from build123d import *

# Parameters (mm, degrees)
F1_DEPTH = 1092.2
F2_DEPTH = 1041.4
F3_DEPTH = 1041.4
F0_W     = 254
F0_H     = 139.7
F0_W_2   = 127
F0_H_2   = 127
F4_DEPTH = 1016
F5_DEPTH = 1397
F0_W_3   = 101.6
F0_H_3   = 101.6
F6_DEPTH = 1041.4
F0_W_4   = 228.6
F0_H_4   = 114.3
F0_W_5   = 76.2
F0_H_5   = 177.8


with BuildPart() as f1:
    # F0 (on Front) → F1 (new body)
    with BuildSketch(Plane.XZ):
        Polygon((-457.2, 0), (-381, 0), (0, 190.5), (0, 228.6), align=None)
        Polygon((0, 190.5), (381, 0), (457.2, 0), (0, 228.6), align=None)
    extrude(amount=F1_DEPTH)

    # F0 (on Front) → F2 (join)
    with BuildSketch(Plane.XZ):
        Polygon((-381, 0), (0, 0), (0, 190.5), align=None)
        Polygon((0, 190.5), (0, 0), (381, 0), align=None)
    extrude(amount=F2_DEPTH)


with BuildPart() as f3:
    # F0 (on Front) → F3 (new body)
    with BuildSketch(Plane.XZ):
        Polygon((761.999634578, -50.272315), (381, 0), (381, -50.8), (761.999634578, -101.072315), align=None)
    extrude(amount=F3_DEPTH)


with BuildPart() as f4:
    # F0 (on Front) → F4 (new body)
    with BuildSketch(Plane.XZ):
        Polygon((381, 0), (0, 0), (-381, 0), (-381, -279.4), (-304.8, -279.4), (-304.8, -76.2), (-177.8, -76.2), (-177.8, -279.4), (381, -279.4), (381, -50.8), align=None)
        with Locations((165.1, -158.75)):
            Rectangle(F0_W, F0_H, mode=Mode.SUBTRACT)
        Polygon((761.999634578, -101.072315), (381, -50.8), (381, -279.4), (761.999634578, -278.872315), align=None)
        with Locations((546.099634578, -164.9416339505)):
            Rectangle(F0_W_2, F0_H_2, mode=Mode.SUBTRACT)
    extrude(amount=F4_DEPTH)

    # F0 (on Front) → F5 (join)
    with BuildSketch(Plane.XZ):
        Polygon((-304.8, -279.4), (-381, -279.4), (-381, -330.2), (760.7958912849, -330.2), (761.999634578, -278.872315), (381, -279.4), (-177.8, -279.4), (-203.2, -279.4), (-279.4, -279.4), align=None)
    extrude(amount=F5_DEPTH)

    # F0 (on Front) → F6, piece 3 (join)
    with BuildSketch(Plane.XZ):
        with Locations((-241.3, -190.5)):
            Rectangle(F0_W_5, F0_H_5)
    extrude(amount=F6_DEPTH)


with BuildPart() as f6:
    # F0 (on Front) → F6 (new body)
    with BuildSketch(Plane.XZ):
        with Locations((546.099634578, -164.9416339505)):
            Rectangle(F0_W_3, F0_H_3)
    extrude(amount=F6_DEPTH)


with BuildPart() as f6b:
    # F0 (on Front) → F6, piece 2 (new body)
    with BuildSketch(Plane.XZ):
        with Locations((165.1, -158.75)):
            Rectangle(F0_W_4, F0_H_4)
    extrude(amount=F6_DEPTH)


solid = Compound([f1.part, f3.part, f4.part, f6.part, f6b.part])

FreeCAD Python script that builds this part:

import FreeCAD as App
import Part
import Sketcher
from FreeCAD import Vector
Q = App.Units.Quantity

doc = App.newDocument("Part")
params = doc.addObject("Spreadsheet::Sheet", "Params")
for row, (alias, value) in enumerate([
    ("sketch1_width", "3 in"),
    ("pad1_length", "43 in"),
    ("sketch2_width", "30 in"),
    ("pad2_length", "41 in"),
    ("sketch3_height", "2 in"),
    ("sketch3_length", "15.13 in"),
    ("pad3_length", "41 in"),
    ("sketch4_width", "30 in"),
    ("sketch4_width2", "3 in"),
    ("sketch4_width3", "5 in"),
    ("sketch4_width4", "10 in"),
    ("sketch4_height", "11 in"),
    ("pad4_length", "40 in"),
    ("sketch5_width", "30 in"),
    ("sketch5_height", "2 in"),
    ("sketch5_length", "15 in"),
    ("pad5_length", "55 in"),
    ("sketch6_width", "3 in"),
    ("sketch6_height", "7 in"),
    ("pad6_length", "41 in"),
    ("sketch7_width", "4 in"),
    ("pad7_length", "41 in"),
    ("sketch8_width", "9 in"),
    ("sketch8_height", "4.5 in"),
    ("pad8_length", "41 in"),
], start=1):
    params.set(f"A{row}", alias)
    params.set(f"B{row}", "=" + value)
    params.setAlias(f"B{row}", alias)

body = doc.addObject("PartDesign::Body", "Body")

# Sketch on XZ plane
sketch1 = body.newObject("Sketcher::SketchObject", "Sketch")
sketch1.AttachmentSupport = (doc.getObject("XZ_Plane"), [""])
sketch1.MapMode = "FlatFace"
sketch1.addGeometry([
    Part.LineSegment(Vector(-457.2, 0, 0), Vector(-381, 0, 0)),  # 0
    Part.LineSegment(Vector(-381, 0, 0), Vector(0, 190.5, 0)),  # 1
    Part.LineSegment(Vector(0, 190.5, 0), Vector(381, 0, 0)),  # 2
    Part.LineSegment(Vector(381, 0, 0), Vector(457.2, 0, 0)),  # 3
    Part.LineSegment(Vector(457.2, 0, 0), Vector(0, 228.6, 0)),  # 4
    Part.LineSegment(Vector(0, 228.6, 0), Vector(-457.2, 0, 0)),  # 5
], False)
sketch1.addConstraint([
    Sketcher.Constraint("Coincident", 0, 2, 1, 1),
    Sketcher.Constraint("Coincident", 1, 2, 2, 1),
    Sketcher.Constraint("Coincident", 2, 2, 3, 1),
    Sketcher.Constraint("Coincident", 3, 2, 4, 1),
    Sketcher.Constraint("Coincident", 4, 2, 5, 1),
    Sketcher.Constraint("Coincident", 5, 2, 0, 1),
    Sketcher.Constraint("Horizontal", 0),
    Sketcher.Constraint("Horizontal", 3),
    Sketcher.Constraint("Symmetric", 0, 2, 2, 2, -1, 1),
    Sketcher.Constraint("Symmetric", 3, 2, 5, 2, -2),
    Sketcher.Constraint("PointOnObject", 1, 2, -2),
    Sketcher.Constraint("PointOnObject", 4, 2, -2),
    Sketcher.Constraint("Parallel", 2, 4),
    Sketcher.Constraint("DistanceX", 0, 1, 0, 2, Q("3 in")),
    Sketcher.Constraint("DistanceX", 0, 2, -1, 1, Q("15 in")),
    Sketcher.Constraint("DistanceY", -1, 1, 4, 2, Q("9 in")),
])
sketch1.setExpression("Constraints[13]", "Params.sketch1_width")
pad1 = body.newObject("PartDesign::Pad", "Pad")
pad1.Profile = sketch1
pad1.setExpression("Length", "Params.pad1_length")

# Sketch on XZ plane
sketch2 = body.newObject("Sketcher::SketchObject", "Sketch001")
sketch2.AttachmentSupport = (doc.getObject("XZ_Plane"), [""])
sketch2.MapMode = "FlatFace"
sketch2.addGeometry([
    Part.LineSegment(Vector(-381, 0, 0), Vector(381, 0, 0)),
    Part.LineSegment(Vector(381, 0, 0), Vector(0, 190.5, 0)),
    Part.LineSegment(Vector(0, 190.5, 0), Vector(-381, 0, 0)),
], False)
sketch2.addConstraint([
    Sketcher.Constraint("Coincident", 0, 2, 1, 1),
    Sketcher.Constraint("Coincident", 1, 2, 2, 1),
    Sketcher.Constraint("Coincident", 2, 2, 0, 1),
    Sketcher.Constraint("Horizontal", 0),
    Sketcher.Constraint("Symmetric", 0, 2, 2, 2, -1, 1),
    Sketcher.Constraint("PointOnObject", 1, 2, -2),
    Sketcher.Constraint("DistanceX", 0, 1, 0, 2, Q("30 in")),
    Sketcher.Constraint("DistanceY", -1, 1, 1, 2, Q("7.5 in")),
])
sketch2.setExpression("Constraints[6]", "Params.sketch2_width")
pad2 = body.newObject("PartDesign::Pad", "Pad001")
pad2.Profile = sketch2
pad2.setExpression("Length", "Params.pad2_length")
body2 = doc.addObject("PartDesign::Body", "Body001")

# Sketch on XZ plane
sketch3 = body2.newObject("Sketcher::SketchObject", "Sketch002")
sketch3.AttachmentSupport = (doc.getObject("XZ_Plane001"), [""])
sketch3.MapMode = "FlatFace"
sketch3.addGeometry([
    Part.LineSegment(Vector(761.999635, -50.272315, 0), Vector(381, 0, 0)),
    Part.LineSegment(Vector(381, 0, 0), Vector(381, -50.8, 0)),
    Part.LineSegment(Vector(381, -50.8, 0), Vector(761.999635, -101.072315, 0)),
    Part.LineSegment(Vector(761.999635, -101.072315, 0), Vector(761.999635, -50.272315, 0)),
], False)
sketch3.addConstraint([
    Sketcher.Constraint("Coincident", 0, 2, 1, 1),
    Sketcher.Constraint("Coincident", 1, 2, 2, 1),
    Sketcher.Constraint("Coincident", 2, 2, 3, 1),
    Sketcher.Constraint("Coincident", 3, 2, 0, 1),
    Sketcher.Constraint("Vertical", 1),
    Sketcher.Constraint("Vertical", 3),
    Sketcher.Constraint("PointOnObject", 0, 2, -1),
    Sketcher.Constraint("Parallel", 0, 2),
    Sketcher.Constraint("DistanceY", 1, 2, 1, 1, Q("2 in")),
    Sketcher.Constraint("DistanceX", -1, 1, 0, 2, Q("15 in")),
    Sketcher.Constraint("Distance", 0, Q("15.13 in")),
    Sketcher.Constraint("DistanceX", -1, 1, 2, 2, Q("761.999635 mm")),
])
sketch3.setExpression("Constraints[8]", "Params.sketch3_height")
sketch3.setExpression("Constraints[10]", "Params.sketch3_length")
pad3 = body2.newObject("PartDesign::Pad", "Pad002")
pad3.Profile = sketch3
pad3.setExpression("Length", "Params.pad3_length")
body3 = doc.addObject("PartDesign::Body", "Body002")

# Sketch on XZ plane
sketch4 = body3.newObject("Sketcher::SketchObject", "Sketch003")
sketch4.AttachmentSupport = (doc.getObject("XZ_Plane002"), [""])
sketch4.MapMode = "FlatFace"
sketch4.addGeometry([
    Part.LineSegment(Vector(381, 0, 0), Vector(-381, 0, 0)),  # 0
    Part.LineSegment(Vector(-381, 0, 0), Vector(-381, -279.4, 0)),  # 1
    Part.LineSegment(Vector(-381, -279.4, 0), Vector(-304.8, -279.4, 0)),  # 2
    Part.LineSegment(Vector(-304.8, -279.4, 0), Vector(-304.8, -76.2, 0)),  # 3
    Part.LineSegment(Vector(-304.8, -76.2, 0), Vector(-177.8, -76.2, 0)),  # 4
    Part.LineSegment(Vector(-177.8, -76.2, 0), Vector(-177.8, -279.4, 0)),  # 5
    Part.LineSegment(Vector(-177.8, -279.4, 0), Vector(381, -279.4, 0)),  # 6
    Part.LineSegment(Vector(381, -279.4, 0), Vector(761.999635, -278.872315, 0)),  # 7
    Part.LineSegment(Vector(761.999635, -278.872315, 0), Vector(761.999635, -101.072315, 0)),  # 8
    Part.LineSegment(Vector(761.999635, -101.072315, 0), Vector(381, -50.8, 0)),  # 9
    Part.LineSegment(Vector(381, -50.8, 0), Vector(381, 0, 0)),  # 10
    Part.LineSegment(Vector(609.599635, -228.441634, 0), Vector(482.599635, -228.441634, 0)),  # 11
    Part.LineSegment(Vector(482.599635, -228.441634, 0), Vector(482.599635, -101.441634, 0)),  # 12
    Part.LineSegment(Vector(482.599635, -101.441634, 0), Vector(609.599635, -101.441634, 0)),  # 13
    Part.LineSegment(Vector(609.599635, -101.441634, 0), Vector(609.599635, -228.441634, 0)),  # 14
    Part.LineSegment(Vector(292.1, -228.6, 0), Vector(38.1, -228.6, 0)),  # 15
    Part.LineSegment(Vector(38.1, -228.6, 0), Vector(38.1, -88.9, 0)),  # 16
    Part.LineSegment(Vector(38.1, -88.9, 0), Vector(292.1, -88.9, 0)),  # 17
    Part.LineSegment(Vector(292.1, -88.9, 0), Vector(292.1, -228.6, 0)),  # 18
], False)
sketch4.addConstraint([
    Sketcher.Constraint("Coincident", 0, 2, 1, 1),
    Sketcher.Constraint("Coincident", 1, 2, 2, 1),
    Sketcher.Constraint("Coincident", 2, 2, 3, 1),
    Sketcher.Constraint("Coincident", 3, 2, 4, 1),
    Sketcher.Constraint("Coincident", 4, 2, 5, 1),
    Sketcher.Constraint("Coincident", 5, 2, 6, 1),
    Sketcher.Constraint("Coincident", 6, 2, 7, 1),
    Sketcher.Constraint("Coincident", 7, 2, 8, 1),
    Sketcher.Constraint("Coincident", 8, 2, 9, 1),
    Sketcher.Constraint("Coincident", 9, 2, 10, 1),
    Sketcher.Constraint("Coincident", 10, 2, 0, 1),
    Sketcher.Constraint("Coincident", 11, 2, 12, 1),
    Sketcher.Constraint("Coincident", 12, 2, 13, 1),
    Sketcher.Constraint("Coincident", 13, 2, 14, 1),
    Sketcher.Constraint("Coincident", 14, 2, 11, 1),
    Sketcher.Constraint("Coincident", 15, 2, 16, 1),
    Sketcher.Constraint("Coincident", 16, 2, 17, 1),
    Sketcher.Constraint("Coincident", 17, 2, 18, 1),
    Sketcher.Constraint("Coincident", 18, 2, 15, 1),
    Sketcher.Constraint("Horizontal", 0),
    Sketcher.Constraint("Vertical", 1),
    Sketcher.Constraint("Horizontal", 2),
    Sketcher.Constraint("Vertical", 3),
    Sketcher.Constraint("Horizontal", 4),
    Sketcher.Constraint("Vertical", 5),
    Sketcher.Constraint("Horizontal", 6),
    Sketcher.Constraint("Vertical", 8),
    Sketcher.Constraint("Vertical", 10),
    Sketcher.Constraint("Horizontal", 11),
    Sketcher.Constraint("Vertical", 12),
    Sketcher.Constraint("Horizontal", 13),
    Sketcher.Constraint("Vertical", 14),
    Sketcher.Constraint("Horizontal", 15),
    Sketcher.Constraint("Vertical", 16),
    Sketcher.Constraint("Horizontal", 17),
    Sketcher.Constraint("Vertical", 18),
    Sketcher.Constraint("Symmetric", 0, 2, 10, 2, -1, 1),
    Sketcher.Constraint("Symmetric", 1, 2, 6, 2, -2),
    Sketcher.Constraint("Equal", 4, 11),
    Sketcher.Constraint("Equal", 13, 12),
    Sketcher.Constraint("DistanceX", 0, 2, 0, 1, Q("30 in")),
    Sketcher.Constraint("DistanceX", 2, 1, 2, 2, Q("3 in")),
    Sketcher.Constraint("DistanceX", 4, 1, 4, 2, Q("5 in")),
    Sketcher.Constraint("DistanceX", 15, 2, 15, 1, Q("10 in")),
    Sketcher.Constraint("DistanceY", 1, 2, 1, 1, Q("11 in")),
    Sketcher.Constraint("DistanceY", 3, 1, 3, 2, Q("8 in")),
    Sketcher.Constraint("DistanceY", 8, 1, 8, 2, Q("7 in")),
    Sketcher.Constraint("DistanceY", 10, 1, 10, 2, Q("2 in")),
    Sketcher.Constraint("Distance", 7, Q("15 in")),
    Sketcher.Constraint("DistanceY", 16, 1, 16, 2, Q("5.5 in")),
    Sketcher.Constraint("DistanceY", 15, 2, -1, 1, Q("9 in")),
    Sketcher.Constraint("DistanceX", 11, 2, 7, 2, Q("11 in")),
    Sketcher.Constraint("DistanceX", -1, 1, 15, 2, Q("1.5 in")),
    Sketcher.Constraint("Distance", 9, Q("15.13 in")),
    Sketcher.Constraint("DistanceY", 7, 2, 11, 2, Q("50.430681 mm")),
])
sketch4.setExpression("Constraints[40]", "Params.sketch4_width")
sketch4.setExpression("Constraints[41]", "Params.sketch4_width2")
sketch4.setExpression("Constraints[42]", "Params.sketch4_width3")
sketch4.setExpression("Constraints[43]", "Params.sketch4_width4")
sketch4.setExpression("Constraints[44]", "Params.sketch4_height")
pad4 = body3.newObject("PartDesign::Pad", "Pad003")
pad4.Profile = sketch4
pad4.setExpression("Length", "Params.pad4_length")

# Sketch on XZ plane
sketch5 = body3.newObject("Sketcher::SketchObject", "Sketch004")
sketch5.AttachmentSupport = (doc.getObject("XZ_Plane002"), [""])
sketch5.MapMode = "FlatFace"
sketch5.addGeometry([
    Part.LineSegment(Vector(-381, -279.4, 0), Vector(-381, -330.2, 0)),  # 0
    Part.LineSegment(Vector(-381, -330.2, 0), Vector(760.795891, -330.2, 0)),  # 1
    Part.LineSegment(Vector(760.795891, -330.2, 0), Vector(761.999635, -278.872315, 0)),  # 2
    Part.LineSegment(Vector(761.999635, -278.872315, 0), Vector(381, -279.4, 0)),  # 3
    Part.LineSegment(Vector(381, -279.4, 0), Vector(-381, -279.4, 0)),  # 4
], False)
sketch5.addConstraint([
    Sketcher.Constraint("Coincident", 0, 2, 1, 1),
    Sketcher.Constraint("Coincident", 1, 2, 2, 1),
    Sketcher.Constraint("Coincident", 2, 2, 3, 1),
    Sketcher.Constraint("Coincident", 3, 2, 4, 1),
    Sketcher.Constraint("Coincident", 4, 2, 0, 1),
    Sketcher.Constraint("Vertical", 0),
    Sketcher.Constraint("Horizontal", 1),
    Sketcher.Constraint("Horizontal", 4),
    Sketcher.Constraint("DistanceX", 4, 2, 4, 1, Q("30 in")),
    Sketcher.Constraint("DistanceY", 0, 2, 0, 1, Q("2 in")),
    Sketcher.Constraint("Distance", 3, Q("15 in")),
    Sketcher.Constraint("DistanceX", 0, 2, -1, 1, Q("15 in")),
    Sketcher.Constraint("DistanceY", 0, 2, -1, 1, Q("13 in")),
    Sketcher.Constraint("Distance", 2, Q("51.341798 mm")),
    Sketcher.Constraint("DistanceX", 1, 1, 1, 2, Q("1141.795891 mm")),
])
sketch5.setExpression("Constraints[8]", "Params.sketch5_width")
sketch5.setExpression("Constraints[9]", "Params.sketch5_height")
sketch5.setExpression("Constraints[10]", "Params.sketch5_length")
pad5 = body3.newObject("PartDesign::Pad", "Pad004")
pad5.Profile = sketch5
pad5.setExpression("Length", "Params.pad5_length")

# Sketch on XZ plane
sketch6 = body3.newObject("Sketcher::SketchObject", "Sketch005")
sketch6.AttachmentSupport = (doc.getObject("XZ_Plane002"), [""])
sketch6.MapMode = "FlatFace"
sketch6.addGeometry([
    Part.LineSegment(Vector(-279.4, -101.6, 0), Vector(-279.4, -279.4, 0)),
    Part.LineSegment(Vector(-279.4, -279.4, 0), Vector(-203.2, -279.4, 0)),
    Part.LineSegment(Vector(-203.2, -279.4, 0), Vector(-203.2, -101.6, 0)),
    Part.LineSegment(Vector(-203.2, -101.6, 0), Vector(-279.4, -101.6, 0)),
], False)
sketch6.addConstraint([
    Sketcher.Constraint("Coincident", 0, 2, 1, 1),
    Sketcher.Constraint("Coincident", 1, 2, 2, 1),
    Sketcher.Constraint("Coincident", 2, 2, 3, 1),
    Sketcher.Constraint("Coincident", 3, 2, 0, 1),
    Sketcher.Constraint("Vertical", 0),
    Sketcher.Constraint("Horizontal", 1),
    Sketcher.Constraint("Vertical", 2),
    Sketcher.Constraint("Horizontal", 3),
    Sketcher.Constraint("DistanceX", 1, 1, 1, 2, Q("3 in")),
    Sketcher.Constraint("DistanceY", 0, 2, 0, 1, Q("7 in")),
    Sketcher.Constraint("DistanceX", 0, 2, -1, 1, Q("11 in")),
    Sketcher.Constraint("DistanceY", 0, 2, -1, 1, Q("11 in")),
])
sketch6.setExpression("Constraints[8]", "Params.sketch6_width")
sketch6.setExpression("Constraints[9]", "Params.sketch6_height")
pad6 = body3.newObject("PartDesign::Pad", "Pad005")
pad6.Profile = sketch6
pad6.setExpression("Length", "Params.pad6_length")
body4 = doc.addObject("PartDesign::Body", "Body003")

# Sketch on XZ plane
sketch7 = body4.newObject("Sketcher::SketchObject", "Sketch006")
sketch7.AttachmentSupport = (doc.getObject("XZ_Plane003"), [""])
sketch7.MapMode = "FlatFace"
sketch7.addGeometry([
    Part.LineSegment(Vector(495.299635, -114.141634, 0), Vector(495.299635, -215.741634, 0)),
    Part.LineSegment(Vector(495.299635, -215.741634, 0), Vector(596.899635, -215.741634, 0)),
    Part.LineSegment(Vector(596.899635, -215.741634, 0), Vector(596.899635, -114.141634, 0)),
    Part.LineSegment(Vector(596.899635, -114.141634, 0), Vector(495.299635, -114.141634, 0)),
], False)
sketch7.addConstraint([
    Sketcher.Constraint("Coincident", 0, 2, 1, 1),
    Sketcher.Constraint("Coincident", 1, 2, 2, 1),
    Sketcher.Constraint("Coincident", 2, 2, 3, 1),
    Sketcher.Constraint("Coincident", 3, 2, 0, 1),
    Sketcher.Constraint("Vertical", 0),
    Sketcher.Constraint("Horizontal", 1),
    Sketcher.Constraint("Vertical", 2),
    Sketcher.Constraint("Horizontal", 3),
    Sketcher.Constraint("Equal", 3, 0),
    Sketcher.Constraint("DistanceX", 1, 1, 1, 2, Q("4 in")),
    Sketcher.Constraint("DistanceX", -1, 1, 0, 2, Q("495.299635 mm")),
    Sketcher.Constraint("DistanceY", 0, 2, -1, 1, Q("215.741634 mm")),
])
sketch7.setExpression("Constraints[9]", "Params.sketch7_width")
pad7 = body4.newObject("PartDesign::Pad", "Pad006")
pad7.Profile = sketch7
pad7.setExpression("Length", "Params.pad7_length")
body5 = doc.addObject("PartDesign::Body", "Body004")

# Sketch on XZ plane
sketch8 = body5.newObject("Sketcher::SketchObject", "Sketch007")
sketch8.AttachmentSupport = (doc.getObject("XZ_Plane004"), [""])
sketch8.MapMode = "FlatFace"
sketch8.addGeometry([
    Part.LineSegment(Vector(50.8, -101.6, 0), Vector(50.8, -215.9, 0)),
    Part.LineSegment(Vector(50.8, -215.9, 0), Vector(279.4, -215.9, 0)),
    Part.LineSegment(Vector(279.4, -215.9, 0), Vector(279.4, -101.6, 0)),
    Part.LineSegment(Vector(279.4, -101.6, 0), Vector(50.8, -101.6, 0)),
], False)
sketch8.addConstraint([
    Sketcher.Constraint("Coincident", 0, 2, 1, 1),
    Sketcher.Constraint("Coincident", 1, 2, 2, 1),
    Sketcher.Constraint("Coincident", 2, 2, 3, 1),
    Sketcher.Constraint("Coincident", 3, 2, 0, 1),
    Sketcher.Constraint("Vertical", 0),
    Sketcher.Constraint("Horizontal", 1),
    Sketcher.Constraint("Vertical", 2),
    Sketcher.Constraint("Horizontal", 3),
    Sketcher.Constraint("DistanceX", 1, 1, 1, 2, Q("9 in")),
    Sketcher.Constraint("DistanceY", 0, 2, 0, 1, Q("4.5 in")),
    Sketcher.Constraint("DistanceX", -1, 1, 0, 2, Q("2 in")),
    Sketcher.Constraint("DistanceY", 2, 2, -1, 1, Q("4 in")),
])
sketch8.setExpression("Constraints[8]", "Params.sketch8_width")
sketch8.setExpression("Constraints[9]", "Params.sketch8_height")
pad8 = body5.newObject("PartDesign::Pad", "Pad007")
pad8.Profile = sketch8
pad8.setExpression("Length", "Params.pad8_length")

doc.recompute()
